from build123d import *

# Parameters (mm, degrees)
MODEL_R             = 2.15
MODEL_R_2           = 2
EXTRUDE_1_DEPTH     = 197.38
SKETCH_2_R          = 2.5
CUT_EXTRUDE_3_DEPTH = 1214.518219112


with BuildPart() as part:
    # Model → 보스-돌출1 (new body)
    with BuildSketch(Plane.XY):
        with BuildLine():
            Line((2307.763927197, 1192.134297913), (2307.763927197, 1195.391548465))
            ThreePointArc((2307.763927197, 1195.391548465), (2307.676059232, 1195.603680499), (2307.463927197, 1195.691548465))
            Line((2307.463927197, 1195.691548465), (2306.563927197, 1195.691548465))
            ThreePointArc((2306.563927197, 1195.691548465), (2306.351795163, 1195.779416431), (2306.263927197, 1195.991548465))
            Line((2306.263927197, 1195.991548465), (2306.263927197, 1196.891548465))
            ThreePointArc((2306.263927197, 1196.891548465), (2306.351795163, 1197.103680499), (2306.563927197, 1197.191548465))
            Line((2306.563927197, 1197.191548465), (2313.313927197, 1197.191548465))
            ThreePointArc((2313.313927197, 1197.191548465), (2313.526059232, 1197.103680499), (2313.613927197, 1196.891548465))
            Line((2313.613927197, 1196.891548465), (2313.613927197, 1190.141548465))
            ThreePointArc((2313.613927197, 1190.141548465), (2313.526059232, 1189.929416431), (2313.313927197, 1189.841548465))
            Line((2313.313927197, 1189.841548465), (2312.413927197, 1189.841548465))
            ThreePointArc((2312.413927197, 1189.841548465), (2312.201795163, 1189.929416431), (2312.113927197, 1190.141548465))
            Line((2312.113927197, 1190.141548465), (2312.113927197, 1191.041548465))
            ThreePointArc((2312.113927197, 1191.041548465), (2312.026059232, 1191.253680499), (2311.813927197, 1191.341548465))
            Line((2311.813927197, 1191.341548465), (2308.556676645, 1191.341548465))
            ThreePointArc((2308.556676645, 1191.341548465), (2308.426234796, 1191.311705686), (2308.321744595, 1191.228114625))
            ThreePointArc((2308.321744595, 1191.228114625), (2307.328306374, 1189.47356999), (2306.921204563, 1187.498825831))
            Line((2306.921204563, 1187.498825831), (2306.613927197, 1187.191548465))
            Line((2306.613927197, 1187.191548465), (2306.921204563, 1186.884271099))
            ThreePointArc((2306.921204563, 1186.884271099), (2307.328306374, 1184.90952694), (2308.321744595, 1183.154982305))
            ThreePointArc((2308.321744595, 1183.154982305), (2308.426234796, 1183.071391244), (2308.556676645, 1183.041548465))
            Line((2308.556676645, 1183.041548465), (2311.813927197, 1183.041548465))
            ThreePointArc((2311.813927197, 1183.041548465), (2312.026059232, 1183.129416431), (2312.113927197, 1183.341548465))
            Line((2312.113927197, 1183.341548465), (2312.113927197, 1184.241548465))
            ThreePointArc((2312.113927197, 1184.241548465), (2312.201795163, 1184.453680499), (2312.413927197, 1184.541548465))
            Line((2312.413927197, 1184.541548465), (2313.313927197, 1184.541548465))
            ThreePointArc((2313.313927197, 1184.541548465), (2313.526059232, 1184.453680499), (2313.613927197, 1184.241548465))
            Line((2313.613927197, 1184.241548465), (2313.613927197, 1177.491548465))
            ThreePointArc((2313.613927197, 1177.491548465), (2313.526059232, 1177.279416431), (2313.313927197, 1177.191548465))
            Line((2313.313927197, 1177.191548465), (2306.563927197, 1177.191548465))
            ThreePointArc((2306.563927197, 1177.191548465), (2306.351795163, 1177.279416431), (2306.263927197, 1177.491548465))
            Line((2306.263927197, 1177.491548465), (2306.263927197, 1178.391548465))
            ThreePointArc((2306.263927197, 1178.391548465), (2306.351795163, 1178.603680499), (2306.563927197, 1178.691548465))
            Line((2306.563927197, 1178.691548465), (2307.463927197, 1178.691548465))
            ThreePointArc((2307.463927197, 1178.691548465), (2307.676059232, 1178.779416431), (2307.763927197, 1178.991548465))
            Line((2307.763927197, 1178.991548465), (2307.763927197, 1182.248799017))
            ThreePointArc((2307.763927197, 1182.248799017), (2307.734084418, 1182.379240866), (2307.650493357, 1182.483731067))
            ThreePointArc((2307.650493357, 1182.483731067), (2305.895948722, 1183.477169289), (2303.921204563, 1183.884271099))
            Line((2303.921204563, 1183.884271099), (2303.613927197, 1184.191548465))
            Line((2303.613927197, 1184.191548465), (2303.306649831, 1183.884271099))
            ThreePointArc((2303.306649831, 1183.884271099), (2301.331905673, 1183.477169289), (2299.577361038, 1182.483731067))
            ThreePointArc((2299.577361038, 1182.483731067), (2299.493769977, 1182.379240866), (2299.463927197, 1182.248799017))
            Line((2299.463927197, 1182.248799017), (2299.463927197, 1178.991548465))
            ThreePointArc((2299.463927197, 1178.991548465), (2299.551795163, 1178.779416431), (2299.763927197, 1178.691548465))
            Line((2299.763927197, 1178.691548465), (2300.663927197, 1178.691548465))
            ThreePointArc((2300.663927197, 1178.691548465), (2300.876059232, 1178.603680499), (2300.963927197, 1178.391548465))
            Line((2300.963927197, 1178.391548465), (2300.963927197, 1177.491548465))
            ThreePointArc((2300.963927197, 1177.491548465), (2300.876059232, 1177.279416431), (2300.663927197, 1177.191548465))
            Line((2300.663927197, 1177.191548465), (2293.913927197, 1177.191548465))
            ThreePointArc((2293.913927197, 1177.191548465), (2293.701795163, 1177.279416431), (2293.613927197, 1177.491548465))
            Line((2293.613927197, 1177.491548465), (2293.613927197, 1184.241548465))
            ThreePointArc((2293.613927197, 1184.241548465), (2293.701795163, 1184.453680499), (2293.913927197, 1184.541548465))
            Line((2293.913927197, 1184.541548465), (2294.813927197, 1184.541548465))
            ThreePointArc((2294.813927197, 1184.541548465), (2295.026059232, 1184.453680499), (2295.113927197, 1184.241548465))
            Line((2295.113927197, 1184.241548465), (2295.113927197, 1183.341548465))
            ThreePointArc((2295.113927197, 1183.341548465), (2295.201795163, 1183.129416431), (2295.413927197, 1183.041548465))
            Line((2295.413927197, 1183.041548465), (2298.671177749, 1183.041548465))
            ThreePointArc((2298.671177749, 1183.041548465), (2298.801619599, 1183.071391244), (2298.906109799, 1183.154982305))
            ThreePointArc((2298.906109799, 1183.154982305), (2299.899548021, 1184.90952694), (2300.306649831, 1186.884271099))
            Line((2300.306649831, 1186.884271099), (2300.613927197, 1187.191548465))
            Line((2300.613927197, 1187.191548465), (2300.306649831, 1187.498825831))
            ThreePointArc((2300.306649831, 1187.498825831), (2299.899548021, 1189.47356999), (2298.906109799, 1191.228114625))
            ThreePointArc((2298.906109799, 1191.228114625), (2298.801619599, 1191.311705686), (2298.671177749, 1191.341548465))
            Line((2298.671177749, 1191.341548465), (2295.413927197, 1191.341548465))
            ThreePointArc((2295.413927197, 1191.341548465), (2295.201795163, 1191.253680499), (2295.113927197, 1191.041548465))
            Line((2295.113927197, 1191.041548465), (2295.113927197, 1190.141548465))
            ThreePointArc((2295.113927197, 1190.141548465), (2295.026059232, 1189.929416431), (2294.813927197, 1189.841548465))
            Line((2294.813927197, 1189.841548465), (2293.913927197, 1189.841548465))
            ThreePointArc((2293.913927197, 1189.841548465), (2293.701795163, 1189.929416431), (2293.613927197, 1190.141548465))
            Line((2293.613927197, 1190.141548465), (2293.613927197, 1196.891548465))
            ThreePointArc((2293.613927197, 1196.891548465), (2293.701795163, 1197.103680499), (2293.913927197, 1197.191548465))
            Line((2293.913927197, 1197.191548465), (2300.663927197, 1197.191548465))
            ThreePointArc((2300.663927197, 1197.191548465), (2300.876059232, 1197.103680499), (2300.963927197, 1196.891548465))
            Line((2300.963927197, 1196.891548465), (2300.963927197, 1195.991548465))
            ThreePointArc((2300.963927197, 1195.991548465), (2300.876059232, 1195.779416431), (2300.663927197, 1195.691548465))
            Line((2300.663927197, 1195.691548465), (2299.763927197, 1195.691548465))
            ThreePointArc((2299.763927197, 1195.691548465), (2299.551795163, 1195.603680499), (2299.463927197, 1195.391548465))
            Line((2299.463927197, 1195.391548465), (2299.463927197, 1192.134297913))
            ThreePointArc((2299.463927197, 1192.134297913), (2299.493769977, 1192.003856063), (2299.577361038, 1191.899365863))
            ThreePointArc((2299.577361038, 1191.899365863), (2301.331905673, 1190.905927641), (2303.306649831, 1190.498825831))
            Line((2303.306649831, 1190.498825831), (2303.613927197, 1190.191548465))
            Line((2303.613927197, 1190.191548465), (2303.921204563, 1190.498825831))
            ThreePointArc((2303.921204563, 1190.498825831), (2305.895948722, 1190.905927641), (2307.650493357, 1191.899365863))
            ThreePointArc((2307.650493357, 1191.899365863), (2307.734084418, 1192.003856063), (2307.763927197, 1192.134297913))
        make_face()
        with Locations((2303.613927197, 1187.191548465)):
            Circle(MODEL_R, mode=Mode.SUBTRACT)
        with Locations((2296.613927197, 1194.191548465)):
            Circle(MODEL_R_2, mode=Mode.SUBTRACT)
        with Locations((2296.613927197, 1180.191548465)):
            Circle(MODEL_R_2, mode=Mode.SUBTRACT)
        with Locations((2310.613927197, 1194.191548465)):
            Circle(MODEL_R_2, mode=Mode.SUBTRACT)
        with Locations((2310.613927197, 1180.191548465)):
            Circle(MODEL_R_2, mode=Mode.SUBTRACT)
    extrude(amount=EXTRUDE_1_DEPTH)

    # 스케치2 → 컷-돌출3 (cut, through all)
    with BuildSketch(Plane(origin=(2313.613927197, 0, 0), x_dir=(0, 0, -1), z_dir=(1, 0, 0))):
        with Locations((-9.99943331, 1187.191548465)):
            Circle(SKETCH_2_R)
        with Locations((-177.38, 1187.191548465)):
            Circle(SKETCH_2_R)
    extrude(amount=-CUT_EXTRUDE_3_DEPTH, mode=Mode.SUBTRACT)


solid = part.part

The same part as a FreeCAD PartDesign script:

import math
import FreeCAD as App
import Part
import Sketcher

doc = App.newDocument("Part")
body = doc.addObject("PartDesign::Body", "Body")

sketch1 = body.newObject("Sketcher::SketchObject", "Sketch")
sketch1.AttachmentSupport = (doc.getObject("XY_Plane"), [""])
sketch1.MapMode = "FlatFace"
sketch1.addGeometry([
    Part.LineSegment(App.Vector(2307.763927, 1195.391548, 0), App.Vector(2307.763927, 1192.134298, 0)),
    Part.ArcOfCircle(Part.Circle(App.Vector(2307.463927, 1192.134298, 0), App.Vector(0, 0, 1), 0.3), math.radians(-51.545921), math.radians(0)),
    Part.ArcOfCircle(Part.Circle(App.Vector(2303.613927, 1196.982382, 0), App.Vector(0, 0, 1), 6.490833), math.radians(-87.286592), math.radians(-51.545921)),
    Part.LineSegment(App.Vector(2303.921205, 1190.498826, 0), App.Vector(2303.613927, 1190.191548, 0)),
    Part.LineSegment(App.Vector(2303.613927, 1190.191548, 0), App.Vector(2303.30665, 1190.498826, 0)),
    Part.ArcOfCircle(Part.Circle(App.Vector(2303.613927, 1196.982382, 0), App.Vector(0, 0, 1), 6.490833), math.radians(-128.454079), math.radians(-92.713408)),
    Part.ArcOfCircle(Part.Circle(App.Vector(2299.763927, 1192.134298, 0), App.Vector(0, 0, 1), 0.3), math.radians(-180), math.radians(-128.454079)),
    Part.LineSegment(App.Vector(2299.463927, 1192.134298, 0), App.Vector(2299.463927, 1195.391548, 0)),
    Part.ArcOfCircle(Part.Circle(App.Vector(2299.763927, 1195.391548, 0), App.Vector(0, 0, 1), 0.3), math.radians(90), math.radians(180)),
    Part.LineSegment(App.Vector(2299.763927, 1195.691548, 0), App.Vector(2300.663927, 1195.691548, 0)),
    Part.ArcOfCircle(Part.Circle(App.Vector(2300.663927, 1195.991548, 0), App.Vector(0, 0, 1), 0.3), math.radians(-90), math.radians(0)),
    Part.LineSegment(App.Vector(2300.963927, 1195.991548, 0), App.Vector(2300.963927, 1196.891548, 0)),
    Part.ArcOfCircle(Part.Circle(App.Vector(2300.663927, 1196.891548, 0), App.Vector(0, 0, 1), 0.3), math.radians(0), math.radians(90)),
    Part.LineSegment(App.Vector(2300.663927, 1197.191548, 0), App.Vector(2293.913927, 1197.191548, 0)),
    Part.ArcOfCircle(Part.Circle(App.Vector(2293.913927, 1196.891548, 0), App.Vector(0, 0, 1), 0.3), math.radians(90), math.radians(180)),
    Part.LineSegment(App.Vector(2293.613927, 1196.891548, 0), App.Vector(2293.613927, 1190.141548, 0)),
    Part.ArcOfCircle(Part.Circle(App.Vector(2293.913927, 1190.141548, 0), App.Vector(0, 0, 1), 0.3), math.radians(-180), math.radians(-90)),
    Part.LineSegment(App.Vector(2293.913927, 1189.841548, 0), App.Vector(2294.813927, 1189.841548, 0)),
    Part.ArcOfCircle(Part.Circle(App.Vector(2294.813927, 1190.141548, 0), App.Vector(0, 0, 1), 0.3), math.radians(-90), math.radians(0)),
    Part.LineSegment(App.Vector(2295.113927, 1190.141548, 0), App.Vector(2295.113927, 1191.041548, 0)),
    Part.ArcOfCircle(Part.Circle(App.Vector(2295.413927, 1191.041548, 0), App.Vector(0, 0, 1), 0.3), math.radians(90), math.radians(180)),
    Part.LineSegment(App.Vector(2295.413927, 1191.341548, 0), App.Vector(2298.671178, 1191.341548, 0)),
    Part.ArcOfCircle(Part.Circle(App.Vector(2298.671178, 1191.041548, 0), App.Vector(0, 0, 1), 0.3), math.radians(38.454079), math.radians(90)),
    Part.ArcOfCircle(Part.Circle(App.Vector(2293.823094, 1187.191548, 0), App.Vector(0, 0, 1), 6.490833), math.radians(2.713408), math.radians(38.454079)),
    Part.LineSegment(App.Vector(2300.30665, 1187.498826, 0), App.Vector(2300.613927, 1187.191548, 0)),
    Part.LineSegment(App.Vector(2300.613927, 1187.191548, 0), App.Vector(2300.30665, 1186.884271, 0)),
    Part.ArcOfCircle(Part.Circle(App.Vector(2293.823094, 1187.191548, 0), App.Vector(0, 0, 1), 6.490833), math.radians(-38.454079), math.radians(-2.713408)),
    Part.ArcOfCircle(Part.Circle(App.Vector(2298.671178, 1183.341548, 0), App.Vector(0, 0, 1), 0.3), math.radians(-90), math.radians(-38.454079)),
    Part.LineSegment(App.Vector(2298.671178, 1183.041548, 0), App.Vector(2295.413927, 1183.041548, 0)),
    Part.ArcOfCircle(Part.Circle(App.Vector(2295.413927, 1183.341548, 0), App.Vector(0, 0, 1), 0.3), math.radians(-180), math.radians(-90)),
    Part.LineSegment(App.Vector(2295.113927, 1183.341548, 0), App.Vector(2295.113927, 1184.241548, 0)),
    Part.ArcOfCircle(Part.Circle(App.Vector(2294.813927, 1184.241548, 0), App.Vector(0, 0, 1), 0.3), math.radians(0), math.radians(90)),
    Part.LineSegment(App.Vector(2294.813927, 1184.541548, 0), App.Vector(2293.913927, 1184.541548, 0)),
    Part.ArcOfCircle(Part.Circle(App.Vector(2293.913927, 1184.241548, 0), App.Vector(0, 0, 1), 0.3), math.radians(90), math.radians(180)),
    Part.LineSegment(App.Vector(2293.613927, 1184.241548, 0), App.Vector(2293.613927, 1177.491548, 0)),
    Part.ArcOfCircle(Part.Circle(App.Vector(2293.913927, 1177.491548, 0), App.Vector(0, 0, 1), 0.3), math.radians(-180), math.radians(-90)),
    Part.LineSegment(App.Vector(2293.913927, 1177.191548, 0), App.Vector(2300.663927, 1177.191548, 0)),
    Part.ArcOfCircle(Part.Circle(App.Vector(2300.663927, 1177.491548, 0), App.Vector(0, 0, 1), 0.3), math.radians(-90), math.radians(0)),
    Part.LineSegment(App.Vector(2300.963927, 1177.491548, 0), App.Vector(2300.963927, 1178.391548, 0)),
    Part.ArcOfCircle(Part.Circle(App.Vector(2300.663927, 1178.391548, 0), App.Vector(0, 0, 1), 0.3), math.radians(0), math.radians(90)),
    Part.LineSegment(App.Vector(2300.663927, 1178.691548, 0), App.Vector(2299.763927, 1178.691548, 0)),
    Part.ArcOfCircle(Part.Circle(App.Vector(2299.763927, 1178.991548, 0), App.Vector(0, 0, 1), 0.3), math.radians(-180), math.radians(-90)),
    Part.LineSegment(App.Vector(2299.463927, 1178.991548, 0), App.Vector(2299.463927, 1182.248799, 0)),
    Part.ArcOfCircle(Part.Circle(App.Vector(2299.763927, 1182.248799, 0), App.Vector(0, 0, 1), 0.3), math.radians(128.45408), math.radians(179.999999)),
    Part.ArcOfCircle(Part.Circle(App.Vector(2303.613927, 1177.400715, 0), App.Vector(0, 0, 1), 6.490833), math.radians(92.713408), math.radians(128.454079)),
    Part.LineSegment(App.Vector(2303.30665, 1183.884271, 0), App.Vector(2303.613927, 1184.191548, 0)),
    Part.LineSegment(App.Vector(2303.613927, 1184.191548, 0), App.Vector(2303.921205, 1183.884271, 0)),
    Part.ArcOfCircle(Part.Circle(App.Vector(2303.613927, 1177.400715, 0), App.Vector(0, 0, 1), 6.490833), math.radians(51.545921), math.radians(87.286592)),
    Part.ArcOfCircle(Part.Circle(App.Vector(2307.463927, 1182.248799, 0), App.Vector(0, 0, 1), 0.3), math.radians(0), math.radians(51.545921)),
    Part.LineSegment(App.Vector(2307.763927, 1182.248799, 0), App.Vector(2307.763927, 1178.991548, 0)),
    Part.ArcOfCircle(Part.Circle(App.Vector(2307.463927, 1178.991548, 0), App.Vector(0, 0, 1), 0.3), math.radians(-90), math.radians(0)),
    Part.LineSegment(App.Vector(2307.463927, 1178.691548, 0), App.Vector(2306.563927, 1178.691548, 0)),
    Part.ArcOfCircle(Part.Circle(App.Vector(2306.563927, 1178.391548, 0), App.Vector(0, 0, 1), 0.3), math.radians(90), math.radians(180)),
    Part.LineSegment(App.Vector(2306.263927, 1178.391548, 0), App.Vector(2306.263927, 1177.491548, 0)),
    Part.ArcOfCircle(Part.Circle(App.Vector(2306.563927, 1177.491548, 0), App.Vector(0, 0, 1), 0.3), math.radians(-180), math.radians(-90)),
    Part.LineSegment(App.Vector(2306.563927, 1177.191548, 0), App.Vector(2313.313927, 1177.191548, 0)),
    Part.ArcOfCircle(Part.Circle(App.Vector(2313.313927, 1177.491548, 0), App.Vector(0, 0, 1), 0.3), math.radians(-90), math.radians(0)),
    Part.LineSegment(App.Vector(2313.613927, 1177.491548, 0), App.Vector(2313.613927, 1184.241548, 0)),
    Part.ArcOfCircle(Part.Circle(App.Vector(2313.313927, 1184.241548, 0), App.Vector(0, 0, 1), 0.3), math.radians(0), math.radians(90)),
    Part.LineSegment(App.Vector(2313.313927, 1184.541548, 0), App.Vector(2312.413927, 1184.541548, 0)),
    Part.ArcOfCircle(Part.Circle(App.Vector(2312.413927, 1184.241548, 0), App.Vector(0, 0, 1), 0.3), math.radians(90), math.radians(180)),
    Part.LineSegment(App.Vector(2312.113927, 1184.241548, 0), App.Vector(2312.113927, 1183.341548, 0)),
    Part.ArcOfCircle(Part.Circle(App.Vector(2311.813927, 1183.341548, 0), App.Vector(0, 0, 1), 0.3), math.radians(-90), math.radians(0)),
    Part.LineSegment(App.Vector(2311.813927, 1183.041548, 0), App.Vector(2308.556677, 1183.041548, 0)),
    Part.ArcOfCircle(Part.Circle(App.Vector(2308.556677, 1183.341548, 0), App.Vector(0, 0, 1), 0.3), math.radians(-141.545921), math.radians(-90)),
    Part.ArcOfCircle(Part.Circle(App.Vector(2313.404761, 1187.191548, 0), App.Vector(0, 0, 1), 6.490833), math.radians(-177.286592), math.radians(-141.545921)),
    Part.LineSegment(App.Vector(2306.921205, 1186.884271, 0), App.Vector(2306.613927, 1187.191548, 0)),
    Part.LineSegment(App.Vector(2306.613927, 1187.191548, 0), App.Vector(2306.921205, 1187.498826, 0)),
    Part.ArcOfCircle(Part.Circle(App.Vector(2313.404761, 1187.191548, 0), App.Vector(0, 0, 1), 6.490833), math.radians(141.545921), math.radians(177.286592)),
    Part.ArcOfCircle(Part.Circle(App.Vector(2308.556677, 1191.041548, 0), App.Vector(0, 0, 1), 0.3), math.radians(90), math.radians(141.545921)),
    Part.LineSegment(App.Vector(2308.556677, 1191.341548, 0), App.Vector(2311.813927, 1191.341548, 0)),
    Part.ArcOfCircle(Part.Circle(App.Vector(2311.813927, 1191.041548, 0), App.Vector(0, 0, 1), 0.3), math.radians(0), math.radians(90)),
    Part.LineSegment(App.Vector(2312.113927, 1191.041548, 0), App.Vector(2312.113927, 1190.141548, 0)),
    Part.ArcOfCircle(Part.Circle(App.Vector(2312.413927, 1190.141548, 0), App.Vector(0, 0, 1), 0.3), math.radians(-180), math.radians(-90)),
    Part.LineSegment(App.Vector(2312.413927, 1189.841548, 0), App.Vector(2313.313927, 1189.841548, 0)),
    Part.ArcOfCircle(Part.Circle(App.Vector(2313.313927, 1190.141548, 0), App.Vector(0, 0, 1), 0.3), math.radians(-90), math.radians(0)),
    Part.LineSegment(App.Vector(2313.613927, 1190.141548, 0), App.Vector(2313.613927, 1196.891548, 0)),
    Part.ArcOfCircle(Part.Circle(App.Vector(2313.313927, 1196.891548, 0), App.Vector(0, 0, 1), 0.3), math.radians(0), math.radians(90)),
    Part.LineSegment(App.Vector(2313.313927, 1197.191548, 0), App.Vector(2306.563927, 1197.191548, 0)),
    Part.ArcOfCircle(Part.Circle(App.Vector(2306.563927, 1196.891548, 0), App.Vector(0, 0, 1), 0.3), math.radians(90), math.radians(180)),
    Part.LineSegment(App.Vector(2306.263927, 1196.891548, 0), App.Vector(2306.263927, 1195.991548, 0)),
    Part.ArcOfCircle(Part.Circle(App.Vector(2306.563927, 1195.991548, 0), App.Vector(0, 0, 1), 0.3), math.radians(-180), math.radians(-90)),
    Part.LineSegment(App.Vector(2306.563927, 1195.691548, 0), App.Vector(2307.463927, 1195.691548, 0)),
    Part.ArcOfCircle(Part.Circle(App.Vector(2307.463927, 1195.391548, 0), App.Vector(0, 0, 1), 0.3), math.radians(0), math.radians(90)),
    Part.Circle(App.Vector(2310.613927, 1180.191548, 0), App.Vector(0, 0, 1), 2),
    Part.Circle(App.Vector(2296.613927, 1180.191548, 0), App.Vector(0, 0, 1), 2),
    Part.Circle(App.Vector(2310.613927, 1194.191548, 0), App.Vector(0, 0, 1), 2),
    Part.Circle(App.Vector(2303.613927, 1187.191548, 0), App.Vector(0, 0, 1), 2.15),
    Part.Circle(App.Vector(2296.613927, 1194.191548, 0), App.Vector(0, 0, 1), 2),
], False)
sketch1.addConstraint([
    Sketcher.Constraint("Tangent", 0, 2, 1, 2),
    Sketcher.Constraint("Tangent", 1, 1, 2, 2),
    Sketcher.Constraint("Coincident", 2, 1, 3, 1),
    Sketcher.Constraint("Coincident", 3, 2, 4, 1),
    Sketcher.Constraint("Coincident", 4, 2, 5, 2),
    Sketcher.Constraint("Tangent", 5, 1, 6, 2),
    Sketcher.Constraint("Tangent", 6, 1, 7, 1),
    Sketcher.Constraint("Tangent", 7, 2, 8, 2),
    Sketcher.Constraint("Tangent", 8, 1, 9, 1),
    Sketcher.Constraint("Tangent", 9, 2, 10, 1),
    Sketcher.Constraint("Tangent", 10, 2, 11, 1),
    Sketcher.Constraint("Tangent", 11, 2, 12, 1),
    Sketcher.Constraint("Tangent", 12, 2, 13, 1),
    Sketcher.Constraint("Tangent", 13, 2, 14, 1),
    Sketcher.Constraint("Tangent", 14, 2, 15, 1),
    Sketcher.Constraint("Tangent", 15, 2, 16, 1),
    Sketcher.Constraint("Tangent", 16, 2, 17, 1),
    Sketcher.Constraint("Tangent", 17, 2, 18, 1),
    Sketcher.Constraint("Tangent", 18, 2, 19, 1),
    Sketcher.Constraint("Tangent", 19, 2, 20, 2),
    Sketcher.Constraint("Tangent", 20, 1, 21, 1),
    Sketcher.Constraint("Tangent", 21, 2, 22, 2),
    Sketcher.Constraint("Tangent", 22, 1, 23, 2),
    Sketcher.Constraint("Coincident", 23, 1, 24, 1),
    Sketcher.Constraint("Coincident", 24, 2, 25, 1),
    Sketcher.Constraint("Coincident", 25, 2, 26, 2),
    Sketcher.Constraint("Tangent", 26, 1, 27, 2),
    Sketcher.Constraint("Tangent", 27, 1, 28, 1),
    Sketcher.Constraint("Tangent", 28, 2, 29, 2),
    Sketcher.Constraint("Tangent", 29, 1, 30, 1),
    Sketcher.Constraint("Tangent", 30, 2, 31, 1),
    Sketcher.Constraint("Tangent", 31, 2, 32, 1),
    Sketcher.Constraint("Tangent", 32, 2, 33, 1),
    Sketcher.Constraint("Tangent", 33, 2, 34, 1),
    Sketcher.Constraint("Tangent", 34, 2, 35, 1),
    Sketcher.Constraint("Tangent", 35, 2, 36, 1),
    Sketcher.Constraint("Tangent", 36, 2, 37, 1),
    Sketcher.Constraint("Tangent", 37, 2, 38, 1),
    Sketcher.Constraint("Tangent", 38, 2, 39, 1),
    Sketcher.Constraint("Tangent", 39, 2, 40, 1),
    Sketcher.Constraint("Tangent", 40, 2, 41, 2),
    Sketcher.Constraint("Tangent", 41, 1, 42, 1),
    Sketcher.Constraint("Tangent", 42, 2, 43, 2),
    Sketcher.Constraint("Tangent", 43, 1, 44, 2),
    Sketcher.Constraint("Coincident", 44, 1, 45, 1),
    Sketcher.Constraint("Coincident", 45, 2, 46, 1),
    Sketcher.Constraint("Coincident", 46, 2, 47, 2),
    Sketcher.Constraint("Tangent", 47, 1, 48, 2),
    Sketcher.Constraint("Tangent", 48, 1, 49, 1),
    Sketcher.Constraint("Tangent", 49, 2, 50, 2),
    Sketcher.Constraint("Tangent", 50, 1, 51, 1),
    Sketcher.Constraint("Tangent", 51, 2, 52, 1),
    Sketcher.Constraint("Tangent", 52, 2, 53, 1),
    Sketcher.Constraint("Tangent", 53, 2, 54, 1),
    Sketcher.Constraint("Tangent", 54, 2, 55, 1),
    Sketcher.Constraint("Tangent", 55, 2, 56, 1),
    Sketcher.Constraint("Tangent", 56, 2, 57, 1),
    Sketcher.Constraint("Tangent", 57, 2, 58, 1),
    Sketcher.Constraint("Tangent", 58, 2, 59, 1),
    Sketcher.Constraint("Tangent", 59, 2, 60, 1),
    Sketcher.Constraint("Tangent", 60, 2, 61, 1),
    Sketcher.Constraint("Tangent", 61, 2, 62, 2),
    Sketcher.Constraint("Tangent", 62, 1, 63, 1),
    Sketcher.Constraint("Tangent", 63, 2, 64, 2),
    Sketcher.Constraint("Tangent", 64, 1, 65, 2),
    Sketcher.Constraint("Coincident", 65, 1, 66, 1),
    Sketcher.Constraint("Coincident", 66, 2, 67, 1),
    Sketcher.Constraint("Coincident", 67, 2, 68, 2),
    Sketcher.Constraint("Tangent", 68, 1, 69, 2),
    Sketcher.Constraint("Tangent", 69, 1, 70, 1),
    Sketcher.Constraint("Tangent", 70, 2, 71, 2),
    Sketcher.Constraint("Tangent", 71, 1, 72, 1),
    Sketcher.Constraint("Tangent", 72, 2, 73, 1),
    Sketcher.Constraint("Tangent", 73, 2, 74, 1),
    Sketcher.Constraint("Tangent", 74, 2, 75, 1),
    Sketcher.Constraint("Tangent", 75, 2, 76, 1),
    Sketcher.Constraint("Tangent", 76, 2, 77, 1),
    Sketcher.Constraint("Tangent", 77, 2, 78, 1),
    Sketcher.Constraint("Tangent", 78, 2, 79, 1),
    Sketcher.Constraint("Tangent", 79, 2, 80, 1),
    Sketcher.Constraint("Tangent", 80, 2, 81, 1),
    Sketcher.Constraint("Tangent", 81, 2, 82, 1),
    Sketcher.Constraint("Tangent", 82, 2, 83, 2),
    Sketcher.Constraint("Tangent", 83, 1, 0, 1),
    Sketcher.Constraint("Vertical", 0),
    Sketcher.Constraint("Vertical", 7),
    Sketcher.Constraint("Horizontal", 9),
    Sketcher.Constraint("Vertical", 11),
    Sketcher.Constraint("Horizontal", 13),
    Sketcher.Constraint("Vertical", 15),
    Sketcher.Constraint("Horizontal", 17),
    Sketcher.Constraint("Vertical", 19),
    Sketcher.Constraint("Horizontal", 21),
    Sketcher.Constraint("Horizontal", 28),
    Sketcher.Constraint("Vertical", 30),
    Sketcher.Constraint("Horizontal", 32),
    Sketcher.Constraint("Vertical", 34),
    Sketcher.Constraint("Horizontal", 36),
    Sketcher.Constraint("Vertical", 38),
    Sketcher.Constraint("Horizontal", 40),
    Sketcher.Constraint("Vertical", 42),
    Sketcher.Constraint("Vertical", 49),
    Sketcher.Constraint("Horizontal", 51),
    Sketcher.Constraint("Vertical", 53),
    Sketcher.Constraint("Horizontal", 55),
    Sketcher.Constraint("Vertical", 57),
    Sketcher.Constraint("Horizontal", 59),
    Sketcher.Constraint("Vertical", 61),
    Sketcher.Constraint("Horizontal", 63),
    Sketcher.Constraint("Horizontal", 70),
    Sketcher.Constraint("Vertical", 72),
    Sketcher.Constraint("Horizontal", 74),
    Sketcher.Constraint("Vertical", 76),
    Sketcher.Constraint("Horizontal", 78),
    Sketcher.Constraint("Vertical", 80),
    Sketcher.Constraint("Horizontal", 82),
    Sketcher.Constraint("Coincident", 5, 3, 2, 3),
    Sketcher.Constraint("Coincident", 26, 3, 23, 3),
    Sketcher.Constraint("Coincident", 47, 3, 44, 3),
    Sketcher.Constraint("Coincident", 68, 3, 65, 3),
    Sketcher.Constraint("Equal", 2, 5),
    Sketcher.Constraint("Equal", 1, 6),
    Sketcher.Constraint("Equal", 6, 8),
    Sketcher.Constraint("Equal", 8, 10),
    Sketcher.Constraint("Equal", 10, 12),
    Sketcher.Constraint("Equal", 12, 14),
    Sketcher.Constraint("Equal", 14, 16),
    Sketcher.Constraint("Equal", 16, 18),
    Sketcher.Constraint("Equal", 18, 20),
    Sketcher.Constraint("Equal", 20, 22),
    Sketcher.Constraint("Equal", 5, 23),
    Sketcher.Constraint("Equal", 23, 26),
    Sketcher.Constraint("Equal", 22, 27),
    Sketcher.Constraint("Equal", 27, 29),
    Sketcher.Constraint("Equal", 29, 31),
    Sketcher.Constraint("Equal", 31, 33),
    Sketcher.Constraint("Equal", 33, 35),
    Sketcher.Constraint("Equal", 35, 37),
    Sketcher.Constraint("Equal", 37, 39),
    Sketcher.Constraint("Equal", 39, 41),
    Sketcher.Constraint("Equal", 41, 43),
    Sketcher.Constraint("Equal", 26, 44),
    Sketcher.Constraint("Equal", 44, 47),
    Sketcher.Constraint("Equal", 43, 48),
    Sketcher.Constraint("Equal", 48, 50),
    Sketcher.Constraint("Equal", 50, 52),
    Sketcher.Constraint("Equal", 52, 54),
    Sketcher.Constraint("Equal", 54, 56),
    Sketcher.Constraint("Equal", 56, 58),
    Sketcher.Constraint("Equal", 58, 60),
    Sketcher.Constraint("Equal", 60, 62),
    Sketcher.Constraint("Equal", 62, 64),
    Sketcher.Constraint("Equal", 47, 65),
    Sketcher.Constraint("Equal", 65, 68),
    Sketcher.Constraint("Equal", 64, 69),
    Sketcher.Constraint("Equal", 69, 71),
    Sketcher.Constraint("Equal", 71, 73),
    Sketcher.Constraint("Equal", 73, 75),
    Sketcher.Constraint("Equal", 75, 77),
    Sketcher.Constraint("Equal", 77, 79),
    Sketcher.Constraint("Equal", 79, 81),
    Sketcher.Constraint("Equal", 81, 83),
    Sketcher.Constraint("Equal", 84, 85),
    Sketcher.Constraint("Equal", 85, 86),
    Sketcher.Constraint("Equal", 86, 88),
    Sketcher.Constraint("Perpendicular", 3, 4),
    Sketcher.Constraint("Parallel", 4, 24),
    Sketcher.Constraint("Perpendicular", 24, 25),
    Sketcher.Constraint("Parallel", 25, 45),
    Sketcher.Constraint("Perpendicular", 45, 46),
    Sketcher.Constraint("Parallel", 46, 66),
    Sketcher.Constraint("Perpendicular", 66, 67),
    Sketcher.Constraint("Horizontal", 1, 3, 6, 3),
    Sketcher.Constraint("Horizontal", 43, 3, 48, 3),
    Sketcher.Constraint("Horizontal", 41, 3, 50, 3),
    Sketcher.Constraint("Horizontal", 37, 3, 54, 3),
    Sketcher.Constraint("Horizontal", 33, 3, 58, 3),
    Sketcher.Constraint("Horizontal", 29, 3, 62, 3),
    Sketcher.Constraint("Horizontal", 26, 3, 65, 3),
    Sketcher.Constraint("Horizontal", 22, 3, 69, 3),
    Sketcher.Constraint("Horizontal", 18, 3, 73, 3),
    Sketcher.Constraint("Horizontal", 14, 3, 77, 3),
    Sketcher.Constraint("Horizontal", 10, 3, 81, 3),
    Sketcher.Constraint("Horizontal", 84, 3, 85, 3),
    Sketcher.Constraint("Horizontal", 68, 3, 87, 3),
    Sketcher.Constraint("Horizontal", 86, 3, 88, 3),
    Sketcher.Constraint("Horizontal", 2, 1, 4, 2),
    Sketcher.Constraint("Horizontal", 87, 3, 24, 2),
    Sketcher.Constraint("Horizontal", 44, 1, 46, 2),
    Sketcher.Constraint("Horizontal", 25, 2, 65, 1),
    Sketcher.Constraint("Horizontal", 24, 2, 66, 2),
    Sketcher.Constraint("Horizontal", 23, 1, 67, 2),
    Sketcher.Constraint("Vertical", 22, 3, 27, 3),
    Sketcher.Constraint("Vertical", 20, 3, 29, 3),
    Sketcher.Constraint("Vertical", 16, 3, 33, 3),
    Sketcher.Constraint("Vertical", 12, 3, 37, 3),
    Sketcher.Constraint("Vertical", 8, 3, 41, 3),
    Sketcher.Constraint("Vertical", 5, 3, 44, 3),
    Sketcher.Constraint("Vertical", 62, 3, 71, 3),
    Sketcher.Constraint("Vertical", 58, 3, 75, 3),
    Sketcher.Constraint("Vertical", 54, 3, 79, 3),
    Sketcher.Constraint("Vertical", 84, 3, 86, 3),
    Sketcher.Constraint("Vertical", 47, 3, 87, 3),
    Sketcher.Constraint("Vertical", 85, 3, 88, 3),
    Sketcher.Constraint("Vertical", 4, 2, 44, 1),
    Sketcher.Constraint("Equal", 9, 17),
    Sketcher.Constraint("Equal", 40, 51),
    Sketcher.Constraint("Equal", 36, 55),
    Sketcher.Constraint("Equal", 51, 59),
    Sketcher.Constraint("Equal", 28, 63),
    Sketcher.Constraint("Equal", 70, 0),
    Sketcher.Constraint("Equal", 82, 11),
    Sketcher.Constraint("Equal", 78, 15),
    Sketcher.Constraint("Equal", 11, 19),
    Sketcher.Constraint("Equal", 19, 30),
    Sketcher.Constraint("Equal", 15, 34),
    Sketcher.Constraint("Equal", 30, 38),
    Sketcher.Constraint("Equal", 7, 42),
    Sketcher.Constraint("Equal", 4, 24),
    Sketcher.Constraint("Diameter", 84, 4.0),
    Sketcher.Constraint("Diameter", 87, 4.3),
    Sketcher.Constraint("Radius", 1, 0.3),
    Sketcher.Constraint("DistanceX", 9, 1, 9, 2, 0.9),
    Sketcher.Constraint("DistanceX", 13, 2, 13, 1, 6.75),
    Sketcher.Constraint("Radius", 2, 6.490833),
    Sketcher.Constraint("DistanceX", 21, 1, 21, 2, 3.257251),
    Sketcher.Constraint("DistanceY", -1, 1, 43, 3, 1182.248799),
    Sketcher.Constraint("DistanceY", -1, 1, 2, 3, 1196.982382),
    Sketcher.Constraint("DistanceY", -1, 1, 8, 3, 1195.391548),
    Sketcher.Constraint("DistanceX", -1, 1, 65, 3, 2313.404761),
    Sketcher.Constraint("DistanceY", -1, 1, 84, 3, 1180.191548),
    Sketcher.Constraint("DistanceY", -1, 1, 86, 3, 1194.191548),
    Sketcher.Constraint("DistanceY", -1, 1, 3, 2, 1190.191548),
    Sketcher.Constraint("DistanceX", -1, 1, 84, 3, 2310.613927),
    Sketcher.Constraint("DistanceX", -1, 1, 85, 3, 2296.613927),
])
pad1 = body.newObject("PartDesign::Pad", "Pad")
pad1.Profile = sketch1
pad1.Length = 197.38

sketch2 = body.newObject("Sketcher::SketchObject", "Sketch001")
sketch2.AttachmentSupport = (doc.getObject("YZ_Plane"), [""])
sketch2.MapMode = "FlatFace"
sketch2.AttachmentOffset = App.Placement(App.Vector(0, 0, 2313.613927), App.Rotation())
sketch2.addGeometry([
    Part.Circle(App.Vector(1187.191548, 9.999433, 0), App.Vector(0, 0, 1), 2.5),
    Part.Circle(App.Vector(1187.191548, 177.38, 0), App.Vector(0, 0, 1), 2.5),
], False)
sketch2.addConstraint([
    Sketcher.Constraint("Equal", 0, 1),
    Sketcher.Constraint("Vertical", 0, 3, 1, 3),
    Sketcher.Constraint("Diameter", 0, 5.0),
    Sketcher.Constraint("DistanceY", -1, 1, 1, 3, 177.38),
    Sketcher.Constraint("DistanceX", -1, 1, 0, 3, 1187.191548),
    Sketcher.Constraint("DistanceY", -1, 1, 0, 3, 9.999433),
])
pocket1 = body.newObject("PartDesign::Pocket", "Pocket")
pocket1.Profile = sketch2
pocket1.Type = "ThroughAll"

doc.recompute()
